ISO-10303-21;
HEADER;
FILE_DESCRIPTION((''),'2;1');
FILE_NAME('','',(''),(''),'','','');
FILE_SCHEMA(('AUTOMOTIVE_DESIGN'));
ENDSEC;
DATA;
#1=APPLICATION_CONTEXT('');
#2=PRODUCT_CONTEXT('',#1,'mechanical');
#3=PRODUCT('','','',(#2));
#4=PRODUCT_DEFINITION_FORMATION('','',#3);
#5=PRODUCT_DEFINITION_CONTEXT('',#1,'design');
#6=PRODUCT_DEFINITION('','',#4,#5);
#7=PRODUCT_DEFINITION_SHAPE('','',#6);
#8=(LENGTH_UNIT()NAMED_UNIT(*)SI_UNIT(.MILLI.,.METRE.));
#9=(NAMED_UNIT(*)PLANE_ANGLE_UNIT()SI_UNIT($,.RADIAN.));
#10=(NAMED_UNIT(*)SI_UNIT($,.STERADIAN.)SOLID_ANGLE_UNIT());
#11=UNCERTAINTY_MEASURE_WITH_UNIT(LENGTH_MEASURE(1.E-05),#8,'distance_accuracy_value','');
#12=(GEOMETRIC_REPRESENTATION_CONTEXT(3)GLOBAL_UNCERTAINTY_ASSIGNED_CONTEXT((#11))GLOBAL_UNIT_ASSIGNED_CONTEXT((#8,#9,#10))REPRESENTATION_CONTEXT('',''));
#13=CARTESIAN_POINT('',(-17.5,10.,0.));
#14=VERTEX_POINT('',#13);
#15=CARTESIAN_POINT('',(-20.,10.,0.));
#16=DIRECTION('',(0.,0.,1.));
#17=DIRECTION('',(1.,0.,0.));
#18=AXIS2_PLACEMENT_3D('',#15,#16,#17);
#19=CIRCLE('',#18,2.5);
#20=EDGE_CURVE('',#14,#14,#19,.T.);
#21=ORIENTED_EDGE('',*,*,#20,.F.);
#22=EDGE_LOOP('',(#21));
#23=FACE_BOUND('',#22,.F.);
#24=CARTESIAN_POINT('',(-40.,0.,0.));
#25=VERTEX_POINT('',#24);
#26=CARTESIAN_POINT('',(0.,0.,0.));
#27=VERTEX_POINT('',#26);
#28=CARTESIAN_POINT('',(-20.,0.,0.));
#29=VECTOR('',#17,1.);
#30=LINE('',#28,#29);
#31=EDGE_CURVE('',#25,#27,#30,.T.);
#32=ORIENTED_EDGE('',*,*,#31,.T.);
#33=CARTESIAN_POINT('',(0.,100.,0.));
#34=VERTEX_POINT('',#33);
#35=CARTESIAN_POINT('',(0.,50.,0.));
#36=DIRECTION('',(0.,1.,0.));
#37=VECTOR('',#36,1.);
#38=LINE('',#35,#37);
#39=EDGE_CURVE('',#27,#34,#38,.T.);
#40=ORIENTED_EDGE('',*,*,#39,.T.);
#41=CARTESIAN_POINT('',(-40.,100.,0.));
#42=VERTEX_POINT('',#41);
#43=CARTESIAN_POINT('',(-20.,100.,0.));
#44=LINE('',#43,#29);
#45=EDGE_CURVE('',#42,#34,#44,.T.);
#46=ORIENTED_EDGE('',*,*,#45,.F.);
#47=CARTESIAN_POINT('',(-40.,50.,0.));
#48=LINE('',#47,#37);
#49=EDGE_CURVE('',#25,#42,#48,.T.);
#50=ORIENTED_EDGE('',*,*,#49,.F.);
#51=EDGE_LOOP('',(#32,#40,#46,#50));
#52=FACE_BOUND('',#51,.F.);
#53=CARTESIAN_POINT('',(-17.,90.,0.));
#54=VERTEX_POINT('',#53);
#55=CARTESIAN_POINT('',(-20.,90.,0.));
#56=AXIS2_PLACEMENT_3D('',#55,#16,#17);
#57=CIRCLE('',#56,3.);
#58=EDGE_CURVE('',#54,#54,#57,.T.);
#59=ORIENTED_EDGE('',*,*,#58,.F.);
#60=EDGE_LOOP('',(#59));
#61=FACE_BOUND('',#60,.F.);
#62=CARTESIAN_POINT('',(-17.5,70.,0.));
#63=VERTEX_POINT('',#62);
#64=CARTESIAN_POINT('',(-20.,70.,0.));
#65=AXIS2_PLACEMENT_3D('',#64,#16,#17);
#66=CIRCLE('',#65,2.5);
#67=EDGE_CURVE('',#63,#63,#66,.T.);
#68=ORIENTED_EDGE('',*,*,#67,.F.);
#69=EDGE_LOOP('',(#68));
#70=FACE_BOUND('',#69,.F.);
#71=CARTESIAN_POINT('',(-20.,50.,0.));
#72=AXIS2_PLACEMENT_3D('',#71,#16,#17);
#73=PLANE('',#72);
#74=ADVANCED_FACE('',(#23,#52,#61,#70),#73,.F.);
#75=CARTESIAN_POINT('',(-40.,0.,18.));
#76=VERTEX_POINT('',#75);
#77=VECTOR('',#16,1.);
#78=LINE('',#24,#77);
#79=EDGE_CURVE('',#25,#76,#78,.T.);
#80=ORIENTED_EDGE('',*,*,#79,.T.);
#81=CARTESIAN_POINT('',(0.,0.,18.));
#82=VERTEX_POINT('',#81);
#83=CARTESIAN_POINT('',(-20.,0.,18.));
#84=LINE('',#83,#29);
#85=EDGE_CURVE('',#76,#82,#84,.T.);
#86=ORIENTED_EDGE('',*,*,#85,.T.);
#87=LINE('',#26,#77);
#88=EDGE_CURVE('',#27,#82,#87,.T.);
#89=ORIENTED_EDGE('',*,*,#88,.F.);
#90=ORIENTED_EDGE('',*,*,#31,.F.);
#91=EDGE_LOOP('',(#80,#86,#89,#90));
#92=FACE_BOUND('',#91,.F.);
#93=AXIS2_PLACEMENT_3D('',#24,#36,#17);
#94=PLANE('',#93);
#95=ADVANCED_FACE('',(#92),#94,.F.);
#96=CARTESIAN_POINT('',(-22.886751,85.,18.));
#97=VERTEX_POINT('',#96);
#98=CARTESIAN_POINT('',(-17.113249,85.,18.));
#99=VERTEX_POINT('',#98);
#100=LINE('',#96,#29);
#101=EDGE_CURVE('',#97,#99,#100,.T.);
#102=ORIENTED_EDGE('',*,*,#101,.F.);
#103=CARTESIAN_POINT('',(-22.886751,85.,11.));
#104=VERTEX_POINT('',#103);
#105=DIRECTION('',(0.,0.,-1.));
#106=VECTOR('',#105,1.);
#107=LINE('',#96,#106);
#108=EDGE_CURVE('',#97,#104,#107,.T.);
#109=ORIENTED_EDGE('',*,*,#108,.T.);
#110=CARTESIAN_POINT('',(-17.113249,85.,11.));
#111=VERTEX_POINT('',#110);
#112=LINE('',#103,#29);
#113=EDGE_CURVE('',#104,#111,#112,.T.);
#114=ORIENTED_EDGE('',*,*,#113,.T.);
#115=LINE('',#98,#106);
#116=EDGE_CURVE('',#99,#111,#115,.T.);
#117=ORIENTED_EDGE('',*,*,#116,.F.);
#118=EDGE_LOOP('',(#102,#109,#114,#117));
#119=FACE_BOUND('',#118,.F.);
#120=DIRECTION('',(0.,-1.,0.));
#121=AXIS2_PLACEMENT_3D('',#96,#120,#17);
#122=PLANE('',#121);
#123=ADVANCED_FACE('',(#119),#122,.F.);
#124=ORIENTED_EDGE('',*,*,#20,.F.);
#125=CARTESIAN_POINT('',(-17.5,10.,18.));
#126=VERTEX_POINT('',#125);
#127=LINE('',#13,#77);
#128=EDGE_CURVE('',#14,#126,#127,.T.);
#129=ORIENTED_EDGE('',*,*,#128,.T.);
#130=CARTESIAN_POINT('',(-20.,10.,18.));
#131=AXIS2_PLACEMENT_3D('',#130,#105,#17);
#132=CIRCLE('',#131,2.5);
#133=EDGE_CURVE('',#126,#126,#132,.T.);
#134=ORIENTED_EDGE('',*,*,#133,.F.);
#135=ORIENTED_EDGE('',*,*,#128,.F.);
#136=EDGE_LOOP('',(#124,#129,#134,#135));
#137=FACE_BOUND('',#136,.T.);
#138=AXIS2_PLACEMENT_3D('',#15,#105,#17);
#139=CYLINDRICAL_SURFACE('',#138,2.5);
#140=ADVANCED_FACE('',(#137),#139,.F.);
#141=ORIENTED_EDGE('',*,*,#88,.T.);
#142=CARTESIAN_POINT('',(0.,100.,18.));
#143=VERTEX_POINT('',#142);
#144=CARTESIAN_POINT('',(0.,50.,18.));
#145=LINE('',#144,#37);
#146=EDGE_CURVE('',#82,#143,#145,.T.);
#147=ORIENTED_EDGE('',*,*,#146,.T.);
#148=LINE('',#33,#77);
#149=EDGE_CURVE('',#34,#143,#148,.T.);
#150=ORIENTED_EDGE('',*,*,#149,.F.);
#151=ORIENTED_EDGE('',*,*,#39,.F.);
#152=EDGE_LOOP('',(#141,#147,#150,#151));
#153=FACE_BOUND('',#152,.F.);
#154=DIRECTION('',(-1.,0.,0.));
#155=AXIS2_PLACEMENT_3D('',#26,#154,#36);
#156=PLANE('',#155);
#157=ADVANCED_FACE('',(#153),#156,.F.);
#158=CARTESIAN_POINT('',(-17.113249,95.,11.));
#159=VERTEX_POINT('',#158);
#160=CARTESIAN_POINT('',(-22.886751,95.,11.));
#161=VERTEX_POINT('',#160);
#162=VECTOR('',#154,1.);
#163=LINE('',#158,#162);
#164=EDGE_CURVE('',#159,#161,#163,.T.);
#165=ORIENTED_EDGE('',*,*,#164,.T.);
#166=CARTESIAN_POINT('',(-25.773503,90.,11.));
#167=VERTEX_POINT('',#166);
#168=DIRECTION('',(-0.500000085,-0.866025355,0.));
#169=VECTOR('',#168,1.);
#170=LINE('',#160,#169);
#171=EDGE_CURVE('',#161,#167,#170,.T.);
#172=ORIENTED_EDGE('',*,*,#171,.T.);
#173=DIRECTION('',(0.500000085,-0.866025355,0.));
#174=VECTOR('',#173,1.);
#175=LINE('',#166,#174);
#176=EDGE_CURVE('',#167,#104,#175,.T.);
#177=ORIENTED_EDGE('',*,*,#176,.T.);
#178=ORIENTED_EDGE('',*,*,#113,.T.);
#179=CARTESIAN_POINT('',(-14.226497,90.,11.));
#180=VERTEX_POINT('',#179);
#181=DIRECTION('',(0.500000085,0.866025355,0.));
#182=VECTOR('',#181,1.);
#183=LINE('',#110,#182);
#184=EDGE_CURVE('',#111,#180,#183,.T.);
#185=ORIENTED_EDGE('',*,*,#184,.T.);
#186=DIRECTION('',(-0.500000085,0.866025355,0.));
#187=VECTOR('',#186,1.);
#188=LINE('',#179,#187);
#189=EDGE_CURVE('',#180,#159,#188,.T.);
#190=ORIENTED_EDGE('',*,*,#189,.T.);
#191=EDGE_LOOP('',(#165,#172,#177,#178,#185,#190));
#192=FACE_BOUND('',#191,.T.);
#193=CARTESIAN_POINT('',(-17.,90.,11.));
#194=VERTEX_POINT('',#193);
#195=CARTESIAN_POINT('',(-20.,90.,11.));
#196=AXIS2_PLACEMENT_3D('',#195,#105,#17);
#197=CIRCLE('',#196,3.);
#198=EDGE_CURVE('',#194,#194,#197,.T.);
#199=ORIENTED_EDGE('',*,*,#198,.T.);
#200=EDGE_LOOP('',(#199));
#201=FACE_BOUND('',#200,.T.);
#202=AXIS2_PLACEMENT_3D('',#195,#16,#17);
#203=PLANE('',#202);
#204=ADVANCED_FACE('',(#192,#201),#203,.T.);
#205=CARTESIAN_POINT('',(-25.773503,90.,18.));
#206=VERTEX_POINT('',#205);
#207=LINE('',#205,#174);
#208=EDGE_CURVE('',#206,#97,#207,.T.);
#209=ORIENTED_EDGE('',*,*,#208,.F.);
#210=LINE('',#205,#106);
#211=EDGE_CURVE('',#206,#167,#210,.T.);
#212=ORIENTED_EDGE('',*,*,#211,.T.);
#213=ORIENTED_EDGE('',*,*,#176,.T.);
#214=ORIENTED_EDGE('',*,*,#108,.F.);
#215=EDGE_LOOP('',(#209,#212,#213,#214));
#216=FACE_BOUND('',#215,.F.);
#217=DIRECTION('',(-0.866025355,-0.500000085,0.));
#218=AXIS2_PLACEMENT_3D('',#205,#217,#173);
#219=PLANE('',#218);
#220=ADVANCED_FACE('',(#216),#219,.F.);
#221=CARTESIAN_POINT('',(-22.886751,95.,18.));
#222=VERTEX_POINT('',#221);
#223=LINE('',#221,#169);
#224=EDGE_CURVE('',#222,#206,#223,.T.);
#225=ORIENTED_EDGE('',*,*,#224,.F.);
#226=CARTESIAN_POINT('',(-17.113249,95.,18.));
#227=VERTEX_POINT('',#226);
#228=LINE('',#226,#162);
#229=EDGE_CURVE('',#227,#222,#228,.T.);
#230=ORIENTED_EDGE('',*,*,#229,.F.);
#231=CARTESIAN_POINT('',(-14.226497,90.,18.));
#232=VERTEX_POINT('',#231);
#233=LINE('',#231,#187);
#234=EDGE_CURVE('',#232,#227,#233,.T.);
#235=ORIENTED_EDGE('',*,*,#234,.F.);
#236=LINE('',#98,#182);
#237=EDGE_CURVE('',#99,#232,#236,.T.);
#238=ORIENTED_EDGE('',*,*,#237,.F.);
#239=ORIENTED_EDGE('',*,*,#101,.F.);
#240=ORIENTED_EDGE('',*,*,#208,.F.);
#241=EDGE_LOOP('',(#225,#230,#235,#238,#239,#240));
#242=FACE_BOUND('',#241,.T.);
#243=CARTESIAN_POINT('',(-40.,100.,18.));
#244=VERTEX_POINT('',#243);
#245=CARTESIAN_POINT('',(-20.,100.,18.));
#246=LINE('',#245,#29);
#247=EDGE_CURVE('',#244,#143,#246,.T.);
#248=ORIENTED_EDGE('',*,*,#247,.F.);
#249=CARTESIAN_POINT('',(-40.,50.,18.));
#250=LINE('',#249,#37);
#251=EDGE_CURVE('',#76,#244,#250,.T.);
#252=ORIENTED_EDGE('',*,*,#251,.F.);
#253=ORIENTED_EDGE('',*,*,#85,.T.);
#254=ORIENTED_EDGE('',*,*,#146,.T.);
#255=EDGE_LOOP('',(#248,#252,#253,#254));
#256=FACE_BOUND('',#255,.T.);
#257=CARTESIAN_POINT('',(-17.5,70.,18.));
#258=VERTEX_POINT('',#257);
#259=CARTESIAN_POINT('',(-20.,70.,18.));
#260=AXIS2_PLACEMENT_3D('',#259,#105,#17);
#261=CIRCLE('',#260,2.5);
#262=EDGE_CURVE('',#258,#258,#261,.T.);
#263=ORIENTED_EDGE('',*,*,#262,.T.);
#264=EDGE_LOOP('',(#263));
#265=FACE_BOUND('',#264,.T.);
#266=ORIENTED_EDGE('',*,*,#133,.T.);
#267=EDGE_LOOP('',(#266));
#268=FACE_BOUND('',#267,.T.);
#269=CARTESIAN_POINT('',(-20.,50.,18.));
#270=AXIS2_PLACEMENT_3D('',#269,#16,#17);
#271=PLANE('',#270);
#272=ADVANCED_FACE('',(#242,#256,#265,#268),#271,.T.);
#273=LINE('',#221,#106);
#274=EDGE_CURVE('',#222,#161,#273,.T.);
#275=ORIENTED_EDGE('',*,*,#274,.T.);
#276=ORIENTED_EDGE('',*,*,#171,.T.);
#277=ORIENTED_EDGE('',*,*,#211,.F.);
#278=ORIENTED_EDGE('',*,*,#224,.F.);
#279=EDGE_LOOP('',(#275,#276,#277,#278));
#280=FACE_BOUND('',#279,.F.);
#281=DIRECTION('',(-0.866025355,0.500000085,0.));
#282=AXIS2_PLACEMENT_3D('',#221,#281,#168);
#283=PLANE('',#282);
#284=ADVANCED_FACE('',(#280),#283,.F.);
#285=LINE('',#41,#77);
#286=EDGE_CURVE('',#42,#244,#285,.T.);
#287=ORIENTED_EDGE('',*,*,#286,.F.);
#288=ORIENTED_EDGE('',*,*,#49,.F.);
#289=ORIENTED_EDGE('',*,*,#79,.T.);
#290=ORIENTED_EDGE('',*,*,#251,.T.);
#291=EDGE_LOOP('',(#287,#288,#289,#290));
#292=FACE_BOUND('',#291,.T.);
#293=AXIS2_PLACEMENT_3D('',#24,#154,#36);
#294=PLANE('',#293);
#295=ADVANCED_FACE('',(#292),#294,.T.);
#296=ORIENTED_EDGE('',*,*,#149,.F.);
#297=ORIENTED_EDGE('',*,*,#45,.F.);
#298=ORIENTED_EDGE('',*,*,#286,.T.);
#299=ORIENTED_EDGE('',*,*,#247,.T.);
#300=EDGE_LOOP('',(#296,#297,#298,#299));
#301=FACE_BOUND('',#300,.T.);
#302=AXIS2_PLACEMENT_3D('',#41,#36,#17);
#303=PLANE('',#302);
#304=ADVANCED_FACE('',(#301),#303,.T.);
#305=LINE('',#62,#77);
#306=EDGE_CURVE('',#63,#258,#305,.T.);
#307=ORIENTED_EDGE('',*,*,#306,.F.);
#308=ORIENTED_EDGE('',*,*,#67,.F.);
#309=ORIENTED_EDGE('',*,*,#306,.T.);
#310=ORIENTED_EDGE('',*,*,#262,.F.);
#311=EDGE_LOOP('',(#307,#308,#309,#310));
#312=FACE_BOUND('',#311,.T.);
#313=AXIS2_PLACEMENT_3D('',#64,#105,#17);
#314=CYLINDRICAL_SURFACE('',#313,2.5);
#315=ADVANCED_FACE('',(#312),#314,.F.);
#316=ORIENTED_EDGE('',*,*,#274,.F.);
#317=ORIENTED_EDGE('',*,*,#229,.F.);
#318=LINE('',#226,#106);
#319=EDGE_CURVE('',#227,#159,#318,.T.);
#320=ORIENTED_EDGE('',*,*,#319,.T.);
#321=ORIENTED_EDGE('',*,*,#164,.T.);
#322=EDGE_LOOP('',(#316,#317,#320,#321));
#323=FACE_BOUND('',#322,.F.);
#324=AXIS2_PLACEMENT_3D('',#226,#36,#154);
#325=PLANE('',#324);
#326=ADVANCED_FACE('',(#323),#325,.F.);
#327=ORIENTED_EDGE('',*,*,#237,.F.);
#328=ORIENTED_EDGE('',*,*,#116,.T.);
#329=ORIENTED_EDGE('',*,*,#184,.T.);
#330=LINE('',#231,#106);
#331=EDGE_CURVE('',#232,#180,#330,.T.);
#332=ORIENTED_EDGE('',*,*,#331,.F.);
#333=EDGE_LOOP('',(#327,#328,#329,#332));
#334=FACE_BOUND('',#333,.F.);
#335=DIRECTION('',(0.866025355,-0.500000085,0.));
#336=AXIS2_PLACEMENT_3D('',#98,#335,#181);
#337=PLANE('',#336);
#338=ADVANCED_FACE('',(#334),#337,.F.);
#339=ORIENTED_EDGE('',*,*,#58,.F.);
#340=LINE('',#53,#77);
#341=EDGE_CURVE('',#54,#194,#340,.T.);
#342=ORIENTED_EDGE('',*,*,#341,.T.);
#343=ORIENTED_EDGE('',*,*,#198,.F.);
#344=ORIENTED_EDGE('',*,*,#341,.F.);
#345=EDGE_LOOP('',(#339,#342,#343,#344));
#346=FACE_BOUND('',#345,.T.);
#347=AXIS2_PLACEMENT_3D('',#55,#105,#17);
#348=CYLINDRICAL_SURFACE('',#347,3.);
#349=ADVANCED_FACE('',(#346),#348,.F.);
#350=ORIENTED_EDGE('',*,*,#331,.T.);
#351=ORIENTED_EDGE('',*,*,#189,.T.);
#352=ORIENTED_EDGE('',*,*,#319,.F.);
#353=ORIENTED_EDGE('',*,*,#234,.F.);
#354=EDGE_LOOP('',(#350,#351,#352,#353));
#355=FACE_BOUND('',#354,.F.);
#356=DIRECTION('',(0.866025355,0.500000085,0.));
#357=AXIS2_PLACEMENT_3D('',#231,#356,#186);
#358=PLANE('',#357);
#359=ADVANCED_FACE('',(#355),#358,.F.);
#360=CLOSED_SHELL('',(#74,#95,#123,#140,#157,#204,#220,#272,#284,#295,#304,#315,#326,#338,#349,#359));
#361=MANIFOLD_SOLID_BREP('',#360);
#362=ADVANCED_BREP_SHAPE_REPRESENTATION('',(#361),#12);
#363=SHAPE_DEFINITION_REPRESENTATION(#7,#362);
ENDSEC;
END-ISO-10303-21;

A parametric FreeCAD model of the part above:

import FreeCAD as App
import Part
import Sketcher

V = App.Vector
Q = App.Units.Quantity


def add_polygon(sketch, points):
    """Adds a closed chain of lines whose ends are joined by coincident constraints."""
    first, n = sketch.GeometryCount, len(points)
    for a, b in zip(points, points[1:] + points[:1]):
        sketch.addGeometry(Part.LineSegment(App.Vector(*a, 0), App.Vector(*b, 0)), False)
    for i in range(n):
        sketch.addConstraint(Sketcher.Constraint("Coincident", first + i, 2, first + (i + 1) % n, 1))

doc = App.newDocument("Part")
body = doc.addObject("PartDesign::Body", "Body")

# Sketch on XY plane
sketch1 = body.newObject("Sketcher::SketchObject", "Sketch")
sketch1.AttachmentSupport = (doc.getObject("XY_Plane"), [""])
sketch1.MapMode = "FlatFace"
add_polygon(sketch1, [(-20, 50), (-20, -50), (20, -50), (20, 50)])  # lines 0-3
sketch1.addConstraint([
    Sketcher.Constraint("Vertical", 0),
    Sketcher.Constraint("Horizontal", 1),
    Sketcher.Constraint("Vertical", 2),
    Sketcher.Constraint("Horizontal", 3),
    Sketcher.Constraint("Symmetric", 0, 2, 2, 2, -1, 1),
    Sketcher.Constraint("DistanceX", 1, 1, 1, 2, 40.0),
    Sketcher.Constraint("DistanceY", 0, 2, 0, 1, 100.0),
])
pad1 = body.newObject("PartDesign::Pad", "Pad")
pad1.Profile = sketch1
pad1.Length = 18

# Sketch on XY plane
sketch2 = body.newObject("Sketcher::SketchObject", "Sketch001")
sketch2.AttachmentSupport = (doc.getObject("XY_Plane"), [""])
sketch2.MapMode = "FlatFace"
sketch2.addGeometry([
    Part.Circle(V(0, 40, 0), V(0, 0, 1), 3),
    Part.Circle(V(0, 20, 0), V(0, 0, 1), 2.5),
    Part.Circle(V(0, -40, 0), V(0, 0, 1), 2.5),
], False)
sketch2.addConstraint([
    Sketcher.Constraint("Equal", 1, 2),
    Sketcher.Constraint("Symmetric", 0, 3, 2, 3, -1, 1),
    Sketcher.Constraint("PointOnObject", 0, 3, -2),
    Sketcher.Constraint("PointOnObject", 1, 3, -2),
    Sketcher.Constraint("Diameter", 0, 6.0),
    Sketcher.Constraint("Diameter", 1, 5.0),
    Sketcher.Constraint("DistanceY", -1, 1, 0, 3, 40.0),
    Sketcher.Constraint("DistanceY", -1, 1, 1, 3, 20.0),
])
pocket1 = body.newObject("PartDesign::Pocket", "Pocket")
pocket1.Profile = sketch2
pocket1.Type = "ThroughAll"
pocket1.Midplane = True

# Sketch on XY plane
sketch3 = body.newObject("Sketcher::SketchObject", "Sketch002")
sketch3.AttachmentSupport = (doc.getObject("XY_Plane"), [""])
sketch3.MapMode = "FlatFace"
sketch3.AttachmentOffset = App.Placement(V(0, 0, 18), App.Rotation())
add_polygon(sketch3, [(6, 40), (3, 45), (-3, 45), (-6, 40), (-3, 35), (3, 35)])  # lines 0-5
sketch3.addConstraint([
    Sketcher.Constraint("Horizontal", 1),
    Sketcher.Constraint("Horizontal", 4),
    Sketcher.Constraint("Symmetric", 2, 2, 5, 2, -2),
    Sketcher.Constraint("Parallel", 0, 3),
    Sketcher.Constraint("Parallel", 2, 5),
    Sketcher.Constraint("Vertical", 1, 2, 3, 2),
    Sketcher.Constraint("Vertical", 0, 2, 4, 2),
    Sketcher.Constraint("Angle", 0, Q("120.000006 deg")),
    Sketcher.Constraint("DistanceY", -1, 1, 0, 2, 45.0),
    Sketcher.Constraint("DistanceY", -1, 1, 2, 2, 40.0),
    Sketcher.Constraint("DistanceX", 1, 2, 1, 1, 5.773502),
])
pocket2 = body.newObject("PartDesign::Pocket", "Pocket001")
pocket2.Profile = sketch3
pocket2.Length = 7
body2 = doc.addObject("PartDesign::Body", "Body001")
doc.recompute()

body.Placement = App.Placement(V(-20, 50, 0), App.Rotation(V(0, 0, 1), 0))
boolean = body2.newObject("PartDesign::Boolean", "Boolean")
boolean.Type = "Fuse"
boolean.addObjects([body])

doc.recompute()
